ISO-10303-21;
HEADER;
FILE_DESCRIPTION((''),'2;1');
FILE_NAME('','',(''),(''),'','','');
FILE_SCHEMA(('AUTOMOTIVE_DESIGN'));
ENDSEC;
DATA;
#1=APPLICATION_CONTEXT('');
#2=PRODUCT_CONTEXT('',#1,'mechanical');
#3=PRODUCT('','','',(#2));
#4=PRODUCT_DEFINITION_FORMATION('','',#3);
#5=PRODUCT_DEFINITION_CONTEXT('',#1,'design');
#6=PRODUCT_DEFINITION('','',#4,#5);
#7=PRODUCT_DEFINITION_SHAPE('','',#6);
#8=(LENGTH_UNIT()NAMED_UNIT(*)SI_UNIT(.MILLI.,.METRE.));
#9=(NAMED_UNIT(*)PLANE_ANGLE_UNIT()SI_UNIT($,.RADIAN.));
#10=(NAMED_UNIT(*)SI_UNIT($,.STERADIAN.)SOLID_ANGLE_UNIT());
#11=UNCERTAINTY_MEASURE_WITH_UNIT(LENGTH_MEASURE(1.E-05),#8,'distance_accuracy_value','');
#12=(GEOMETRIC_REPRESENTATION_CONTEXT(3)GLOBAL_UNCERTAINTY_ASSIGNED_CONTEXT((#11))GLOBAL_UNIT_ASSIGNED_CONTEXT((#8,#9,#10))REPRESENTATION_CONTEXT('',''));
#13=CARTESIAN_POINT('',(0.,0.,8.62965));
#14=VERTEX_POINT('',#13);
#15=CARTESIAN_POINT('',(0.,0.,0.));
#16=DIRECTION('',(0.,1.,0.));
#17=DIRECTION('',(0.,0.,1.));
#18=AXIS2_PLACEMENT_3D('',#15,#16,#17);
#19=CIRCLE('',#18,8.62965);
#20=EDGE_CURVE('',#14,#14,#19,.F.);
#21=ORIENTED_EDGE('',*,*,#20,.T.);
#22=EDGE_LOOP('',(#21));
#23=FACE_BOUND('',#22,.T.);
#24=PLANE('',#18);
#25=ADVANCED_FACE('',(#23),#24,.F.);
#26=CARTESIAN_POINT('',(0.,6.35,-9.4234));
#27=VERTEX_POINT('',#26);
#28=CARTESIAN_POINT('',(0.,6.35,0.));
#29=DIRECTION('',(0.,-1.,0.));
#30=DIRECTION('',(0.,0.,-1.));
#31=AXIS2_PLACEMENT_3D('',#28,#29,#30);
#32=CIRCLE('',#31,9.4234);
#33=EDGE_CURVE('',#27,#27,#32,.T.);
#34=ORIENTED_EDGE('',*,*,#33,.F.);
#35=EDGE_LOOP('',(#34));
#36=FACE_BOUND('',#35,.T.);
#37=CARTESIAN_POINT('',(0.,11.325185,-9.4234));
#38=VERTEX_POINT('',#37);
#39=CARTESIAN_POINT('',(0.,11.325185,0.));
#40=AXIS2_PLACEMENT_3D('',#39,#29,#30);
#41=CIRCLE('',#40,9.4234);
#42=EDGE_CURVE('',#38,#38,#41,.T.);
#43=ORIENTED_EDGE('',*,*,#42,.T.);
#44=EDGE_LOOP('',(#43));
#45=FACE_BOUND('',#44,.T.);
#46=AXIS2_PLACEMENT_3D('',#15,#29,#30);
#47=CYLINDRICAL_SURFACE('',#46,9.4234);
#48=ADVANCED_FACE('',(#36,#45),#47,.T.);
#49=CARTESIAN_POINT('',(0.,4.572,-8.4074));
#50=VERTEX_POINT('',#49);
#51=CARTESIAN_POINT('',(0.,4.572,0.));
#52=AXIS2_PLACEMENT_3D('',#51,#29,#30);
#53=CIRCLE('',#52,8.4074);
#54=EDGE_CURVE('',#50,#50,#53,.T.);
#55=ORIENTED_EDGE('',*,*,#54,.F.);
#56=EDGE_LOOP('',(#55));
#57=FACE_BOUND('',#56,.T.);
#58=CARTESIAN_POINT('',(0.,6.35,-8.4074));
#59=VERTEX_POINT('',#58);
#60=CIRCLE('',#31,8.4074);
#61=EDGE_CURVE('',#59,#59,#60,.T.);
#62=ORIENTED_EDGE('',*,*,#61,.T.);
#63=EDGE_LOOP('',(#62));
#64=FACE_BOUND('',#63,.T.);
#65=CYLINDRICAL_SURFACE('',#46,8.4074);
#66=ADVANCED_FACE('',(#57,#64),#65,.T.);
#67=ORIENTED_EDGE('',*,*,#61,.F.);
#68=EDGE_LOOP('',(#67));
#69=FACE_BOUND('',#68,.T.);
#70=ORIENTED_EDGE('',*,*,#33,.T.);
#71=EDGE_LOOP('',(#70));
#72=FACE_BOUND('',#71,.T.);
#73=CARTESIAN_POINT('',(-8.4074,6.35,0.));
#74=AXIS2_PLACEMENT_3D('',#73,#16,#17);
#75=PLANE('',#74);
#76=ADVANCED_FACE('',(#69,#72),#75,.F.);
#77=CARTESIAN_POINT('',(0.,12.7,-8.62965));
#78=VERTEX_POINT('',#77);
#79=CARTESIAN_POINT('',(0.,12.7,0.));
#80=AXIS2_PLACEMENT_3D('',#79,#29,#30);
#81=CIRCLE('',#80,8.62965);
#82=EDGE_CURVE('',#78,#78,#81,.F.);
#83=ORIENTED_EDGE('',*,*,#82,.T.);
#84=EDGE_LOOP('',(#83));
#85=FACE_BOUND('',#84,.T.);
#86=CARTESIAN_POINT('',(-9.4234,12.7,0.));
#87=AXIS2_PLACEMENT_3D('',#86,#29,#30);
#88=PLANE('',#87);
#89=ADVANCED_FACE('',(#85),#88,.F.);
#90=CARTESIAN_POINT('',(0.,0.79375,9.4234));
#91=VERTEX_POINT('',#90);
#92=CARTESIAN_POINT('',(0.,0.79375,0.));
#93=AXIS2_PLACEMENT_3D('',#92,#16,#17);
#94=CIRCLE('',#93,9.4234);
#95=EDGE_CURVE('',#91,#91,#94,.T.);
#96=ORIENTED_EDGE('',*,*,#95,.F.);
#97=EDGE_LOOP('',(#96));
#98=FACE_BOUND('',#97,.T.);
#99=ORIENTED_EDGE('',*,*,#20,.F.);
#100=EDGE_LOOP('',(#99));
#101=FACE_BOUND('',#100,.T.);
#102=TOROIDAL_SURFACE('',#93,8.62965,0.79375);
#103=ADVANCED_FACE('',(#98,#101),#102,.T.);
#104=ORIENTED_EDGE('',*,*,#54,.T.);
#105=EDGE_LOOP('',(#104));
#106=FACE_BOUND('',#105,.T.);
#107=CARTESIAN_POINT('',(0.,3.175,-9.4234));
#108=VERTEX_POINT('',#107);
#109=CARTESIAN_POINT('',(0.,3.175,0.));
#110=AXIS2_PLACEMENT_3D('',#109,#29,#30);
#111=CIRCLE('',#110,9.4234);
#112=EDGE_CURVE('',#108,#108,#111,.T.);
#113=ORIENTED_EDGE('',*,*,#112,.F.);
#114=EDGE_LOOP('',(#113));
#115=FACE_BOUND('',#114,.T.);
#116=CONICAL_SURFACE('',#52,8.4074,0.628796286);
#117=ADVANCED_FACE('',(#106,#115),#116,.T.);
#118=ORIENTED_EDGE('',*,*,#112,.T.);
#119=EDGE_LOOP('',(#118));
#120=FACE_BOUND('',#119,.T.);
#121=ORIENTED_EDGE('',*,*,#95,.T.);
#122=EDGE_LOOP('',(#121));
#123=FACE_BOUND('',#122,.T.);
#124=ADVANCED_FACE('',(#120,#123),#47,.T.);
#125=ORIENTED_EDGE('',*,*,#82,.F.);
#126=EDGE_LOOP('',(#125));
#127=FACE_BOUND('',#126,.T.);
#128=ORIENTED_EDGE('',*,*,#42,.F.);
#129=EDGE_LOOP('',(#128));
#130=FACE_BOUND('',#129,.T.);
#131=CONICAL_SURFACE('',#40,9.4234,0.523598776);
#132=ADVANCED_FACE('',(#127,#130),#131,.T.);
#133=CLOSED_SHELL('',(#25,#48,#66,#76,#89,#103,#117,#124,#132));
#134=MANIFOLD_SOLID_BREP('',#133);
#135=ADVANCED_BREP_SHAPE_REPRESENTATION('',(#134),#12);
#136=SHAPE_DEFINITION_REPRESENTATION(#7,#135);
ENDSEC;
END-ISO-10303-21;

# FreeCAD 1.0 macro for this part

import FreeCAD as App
import Part
import Sketcher
from FreeCAD import Vector
Q = App.Units.Quantity


def edges_at(feature, points):
    """Names of the edges that pass closest to the given points."""
    edges = feature.Shape.Edges
    near = lambda p: min(range(len(edges)), key=lambda i: edges[i].distToShape(Part.Vertex(*p))[0])
    return sorted({f"Edge{near(p) + 1}" for p in points})

doc = App.newDocument("Part")
params = doc.addObject("Spreadsheet::Sheet", "Params")
for row, (alias, value) in enumerate([
    ("sketch1_height", "0.5 in"),
    ("sketch1_width", "0.04 in"),
    ("sketch1_height2", "0.25 in"),
    ("sketch1_height3", "0.07 in"),
    ("sketch1_width2", "0.371 in"),
    ("revolution_angle", "360 deg"),
    ("fillet_radius", "0.03125 in"),
    ("chamfer_size", "0.03125 in"),
    ("chamfer_size2", "1.374815 mm"),
], start=1):
    params.set(f"A{row}", alias)
    params.set(f"B{row}", "=" + value)
    params.setAlias(f"B{row}", alias)

body = doc.addObject("PartDesign::Body", "Body")

# Sketch on XY plane
sketch1 = doc.addObject("Sketcher::SketchObject", "Sketch")
body.addObject(sketch1)
sketch1.AttachmentSupport = (doc.XY_Plane, [""])
sketch1.MapMode = "FlatFace"
sketch1.addGeometry([
    Part.LineSegment(Vector(-9.4234, 0, 0), Vector(0, 0, 0)),  # 0
    Part.LineSegment(Vector(0, 0, 0), Vector(0, 12.7, 0)),  # 1
    Part.LineSegment(Vector(0, 12.7, 0), Vector(-9.4234, 12.7, 0)),  # 2
    Part.LineSegment(Vector(-9.4234, 12.7, 0), Vector(-9.4234, 6.35, 0)),  # 3
    Part.LineSegment(Vector(-9.4234, 6.35, 0), Vector(-8.4074, 6.35, 0)),  # 4
    Part.LineSegment(Vector(-8.4074, 6.35, 0), Vector(-8.4074, 4.572, 0)),  # 5
    Part.LineSegment(Vector(-8.4074, 4.572, 0), Vector(-9.4234, 3.175, 0)),  # 6
    Part.LineSegment(Vector(-9.4234, 3.175, 0), Vector(-9.4234, 0, 0)),  # 7
], False)
sketch1.addConstraint([
    Sketcher.Constraint("Coincident", 0, 2, 1, 1),
    Sketcher.Constraint("Coincident", 1, 2, 2, 1),
    Sketcher.Constraint("Coincident", 2, 2, 3, 1),
    Sketcher.Constraint("Coincident", 3, 2, 4, 1),
    Sketcher.Constraint("Coincident", 4, 2, 5, 1),
    Sketcher.Constraint("Coincident", 5, 2, 6, 1),
    Sketcher.Constraint("Coincident", 6, 2, 7, 1),
    Sketcher.Constraint("Coincident", 7, 2, 0, 1),
    Sketcher.Constraint("Horizontal", 0),
    Sketcher.Constraint("Vertical", 1),
    Sketcher.Constraint("Horizontal", 2),
    Sketcher.Constraint("Vertical", 3),
    Sketcher.Constraint("Horizontal", 4),
    Sketcher.Constraint("Vertical", 5),
    Sketcher.Constraint("Vertical", 7),
    Sketcher.Constraint("Coincident", 0, 2, -1, 1),
    Sketcher.Constraint("Vertical", 3, 2, 6, 2),
    Sketcher.Constraint("DistanceY", 1, 1, 1, 2, Q("0.5 in")),
    Sketcher.Constraint("DistanceX", 4, 1, 4, 2, Q("0.04 in")),
    Sketcher.Constraint("DistanceY", 3, 2, 3, 1, Q("0.25 in")),
    Sketcher.Constraint("DistanceY", 5, 2, 5, 1, Q("0.07 in")),
    Sketcher.Constraint("DistanceX", 0, 1, 0, 2, Q("0.371 in")),
    Sketcher.Constraint("DistanceY", 7, 2, 7, 1, Q("0.125 in")),
])
sketch1.setExpression("Constraints[17]", "Params.sketch1_height")
sketch1.setExpression("Constraints[18]", "Params.sketch1_width")
sketch1.setExpression("Constraints[19]", "Params.sketch1_height2")
sketch1.setExpression("Constraints[20]", "Params.sketch1_height3")
sketch1.setExpression("Constraints[21]", "Params.sketch1_width2")
revolution = doc.addObject("PartDesign::Revolution", "Revolution")
body.addObject(revolution)
revolution.Profile = sketch1
revolution.ReferenceAxis = (sketch1, ["V_Axis"])
revolution.setExpression("Angle", "Params.revolution_angle")
doc.recompute()

fillet = doc.addObject("PartDesign::Fillet", "Fillet")
body.addObject(fillet)
fillet.Base = (revolution, edges_at(revolution, [(9.423, 0, 0)]))
fillet.setExpression("Radius", "Params.fillet_radius")
doc.recompute()

chamfer = doc.addObject("PartDesign::Chamfer", "Chamfer")
body.addObject(chamfer)
chamfer.Base = (fillet, edges_at(fillet, [(9.423, 12.7, 0)]))
chamfer.ChamferType = "Two distances"
chamfer.setExpression("Size", "Params.chamfer_size")
chamfer.setExpression("Size2", "Params.chamfer_size2")
chamfer.FlipDirection = True

doc.recompute()
